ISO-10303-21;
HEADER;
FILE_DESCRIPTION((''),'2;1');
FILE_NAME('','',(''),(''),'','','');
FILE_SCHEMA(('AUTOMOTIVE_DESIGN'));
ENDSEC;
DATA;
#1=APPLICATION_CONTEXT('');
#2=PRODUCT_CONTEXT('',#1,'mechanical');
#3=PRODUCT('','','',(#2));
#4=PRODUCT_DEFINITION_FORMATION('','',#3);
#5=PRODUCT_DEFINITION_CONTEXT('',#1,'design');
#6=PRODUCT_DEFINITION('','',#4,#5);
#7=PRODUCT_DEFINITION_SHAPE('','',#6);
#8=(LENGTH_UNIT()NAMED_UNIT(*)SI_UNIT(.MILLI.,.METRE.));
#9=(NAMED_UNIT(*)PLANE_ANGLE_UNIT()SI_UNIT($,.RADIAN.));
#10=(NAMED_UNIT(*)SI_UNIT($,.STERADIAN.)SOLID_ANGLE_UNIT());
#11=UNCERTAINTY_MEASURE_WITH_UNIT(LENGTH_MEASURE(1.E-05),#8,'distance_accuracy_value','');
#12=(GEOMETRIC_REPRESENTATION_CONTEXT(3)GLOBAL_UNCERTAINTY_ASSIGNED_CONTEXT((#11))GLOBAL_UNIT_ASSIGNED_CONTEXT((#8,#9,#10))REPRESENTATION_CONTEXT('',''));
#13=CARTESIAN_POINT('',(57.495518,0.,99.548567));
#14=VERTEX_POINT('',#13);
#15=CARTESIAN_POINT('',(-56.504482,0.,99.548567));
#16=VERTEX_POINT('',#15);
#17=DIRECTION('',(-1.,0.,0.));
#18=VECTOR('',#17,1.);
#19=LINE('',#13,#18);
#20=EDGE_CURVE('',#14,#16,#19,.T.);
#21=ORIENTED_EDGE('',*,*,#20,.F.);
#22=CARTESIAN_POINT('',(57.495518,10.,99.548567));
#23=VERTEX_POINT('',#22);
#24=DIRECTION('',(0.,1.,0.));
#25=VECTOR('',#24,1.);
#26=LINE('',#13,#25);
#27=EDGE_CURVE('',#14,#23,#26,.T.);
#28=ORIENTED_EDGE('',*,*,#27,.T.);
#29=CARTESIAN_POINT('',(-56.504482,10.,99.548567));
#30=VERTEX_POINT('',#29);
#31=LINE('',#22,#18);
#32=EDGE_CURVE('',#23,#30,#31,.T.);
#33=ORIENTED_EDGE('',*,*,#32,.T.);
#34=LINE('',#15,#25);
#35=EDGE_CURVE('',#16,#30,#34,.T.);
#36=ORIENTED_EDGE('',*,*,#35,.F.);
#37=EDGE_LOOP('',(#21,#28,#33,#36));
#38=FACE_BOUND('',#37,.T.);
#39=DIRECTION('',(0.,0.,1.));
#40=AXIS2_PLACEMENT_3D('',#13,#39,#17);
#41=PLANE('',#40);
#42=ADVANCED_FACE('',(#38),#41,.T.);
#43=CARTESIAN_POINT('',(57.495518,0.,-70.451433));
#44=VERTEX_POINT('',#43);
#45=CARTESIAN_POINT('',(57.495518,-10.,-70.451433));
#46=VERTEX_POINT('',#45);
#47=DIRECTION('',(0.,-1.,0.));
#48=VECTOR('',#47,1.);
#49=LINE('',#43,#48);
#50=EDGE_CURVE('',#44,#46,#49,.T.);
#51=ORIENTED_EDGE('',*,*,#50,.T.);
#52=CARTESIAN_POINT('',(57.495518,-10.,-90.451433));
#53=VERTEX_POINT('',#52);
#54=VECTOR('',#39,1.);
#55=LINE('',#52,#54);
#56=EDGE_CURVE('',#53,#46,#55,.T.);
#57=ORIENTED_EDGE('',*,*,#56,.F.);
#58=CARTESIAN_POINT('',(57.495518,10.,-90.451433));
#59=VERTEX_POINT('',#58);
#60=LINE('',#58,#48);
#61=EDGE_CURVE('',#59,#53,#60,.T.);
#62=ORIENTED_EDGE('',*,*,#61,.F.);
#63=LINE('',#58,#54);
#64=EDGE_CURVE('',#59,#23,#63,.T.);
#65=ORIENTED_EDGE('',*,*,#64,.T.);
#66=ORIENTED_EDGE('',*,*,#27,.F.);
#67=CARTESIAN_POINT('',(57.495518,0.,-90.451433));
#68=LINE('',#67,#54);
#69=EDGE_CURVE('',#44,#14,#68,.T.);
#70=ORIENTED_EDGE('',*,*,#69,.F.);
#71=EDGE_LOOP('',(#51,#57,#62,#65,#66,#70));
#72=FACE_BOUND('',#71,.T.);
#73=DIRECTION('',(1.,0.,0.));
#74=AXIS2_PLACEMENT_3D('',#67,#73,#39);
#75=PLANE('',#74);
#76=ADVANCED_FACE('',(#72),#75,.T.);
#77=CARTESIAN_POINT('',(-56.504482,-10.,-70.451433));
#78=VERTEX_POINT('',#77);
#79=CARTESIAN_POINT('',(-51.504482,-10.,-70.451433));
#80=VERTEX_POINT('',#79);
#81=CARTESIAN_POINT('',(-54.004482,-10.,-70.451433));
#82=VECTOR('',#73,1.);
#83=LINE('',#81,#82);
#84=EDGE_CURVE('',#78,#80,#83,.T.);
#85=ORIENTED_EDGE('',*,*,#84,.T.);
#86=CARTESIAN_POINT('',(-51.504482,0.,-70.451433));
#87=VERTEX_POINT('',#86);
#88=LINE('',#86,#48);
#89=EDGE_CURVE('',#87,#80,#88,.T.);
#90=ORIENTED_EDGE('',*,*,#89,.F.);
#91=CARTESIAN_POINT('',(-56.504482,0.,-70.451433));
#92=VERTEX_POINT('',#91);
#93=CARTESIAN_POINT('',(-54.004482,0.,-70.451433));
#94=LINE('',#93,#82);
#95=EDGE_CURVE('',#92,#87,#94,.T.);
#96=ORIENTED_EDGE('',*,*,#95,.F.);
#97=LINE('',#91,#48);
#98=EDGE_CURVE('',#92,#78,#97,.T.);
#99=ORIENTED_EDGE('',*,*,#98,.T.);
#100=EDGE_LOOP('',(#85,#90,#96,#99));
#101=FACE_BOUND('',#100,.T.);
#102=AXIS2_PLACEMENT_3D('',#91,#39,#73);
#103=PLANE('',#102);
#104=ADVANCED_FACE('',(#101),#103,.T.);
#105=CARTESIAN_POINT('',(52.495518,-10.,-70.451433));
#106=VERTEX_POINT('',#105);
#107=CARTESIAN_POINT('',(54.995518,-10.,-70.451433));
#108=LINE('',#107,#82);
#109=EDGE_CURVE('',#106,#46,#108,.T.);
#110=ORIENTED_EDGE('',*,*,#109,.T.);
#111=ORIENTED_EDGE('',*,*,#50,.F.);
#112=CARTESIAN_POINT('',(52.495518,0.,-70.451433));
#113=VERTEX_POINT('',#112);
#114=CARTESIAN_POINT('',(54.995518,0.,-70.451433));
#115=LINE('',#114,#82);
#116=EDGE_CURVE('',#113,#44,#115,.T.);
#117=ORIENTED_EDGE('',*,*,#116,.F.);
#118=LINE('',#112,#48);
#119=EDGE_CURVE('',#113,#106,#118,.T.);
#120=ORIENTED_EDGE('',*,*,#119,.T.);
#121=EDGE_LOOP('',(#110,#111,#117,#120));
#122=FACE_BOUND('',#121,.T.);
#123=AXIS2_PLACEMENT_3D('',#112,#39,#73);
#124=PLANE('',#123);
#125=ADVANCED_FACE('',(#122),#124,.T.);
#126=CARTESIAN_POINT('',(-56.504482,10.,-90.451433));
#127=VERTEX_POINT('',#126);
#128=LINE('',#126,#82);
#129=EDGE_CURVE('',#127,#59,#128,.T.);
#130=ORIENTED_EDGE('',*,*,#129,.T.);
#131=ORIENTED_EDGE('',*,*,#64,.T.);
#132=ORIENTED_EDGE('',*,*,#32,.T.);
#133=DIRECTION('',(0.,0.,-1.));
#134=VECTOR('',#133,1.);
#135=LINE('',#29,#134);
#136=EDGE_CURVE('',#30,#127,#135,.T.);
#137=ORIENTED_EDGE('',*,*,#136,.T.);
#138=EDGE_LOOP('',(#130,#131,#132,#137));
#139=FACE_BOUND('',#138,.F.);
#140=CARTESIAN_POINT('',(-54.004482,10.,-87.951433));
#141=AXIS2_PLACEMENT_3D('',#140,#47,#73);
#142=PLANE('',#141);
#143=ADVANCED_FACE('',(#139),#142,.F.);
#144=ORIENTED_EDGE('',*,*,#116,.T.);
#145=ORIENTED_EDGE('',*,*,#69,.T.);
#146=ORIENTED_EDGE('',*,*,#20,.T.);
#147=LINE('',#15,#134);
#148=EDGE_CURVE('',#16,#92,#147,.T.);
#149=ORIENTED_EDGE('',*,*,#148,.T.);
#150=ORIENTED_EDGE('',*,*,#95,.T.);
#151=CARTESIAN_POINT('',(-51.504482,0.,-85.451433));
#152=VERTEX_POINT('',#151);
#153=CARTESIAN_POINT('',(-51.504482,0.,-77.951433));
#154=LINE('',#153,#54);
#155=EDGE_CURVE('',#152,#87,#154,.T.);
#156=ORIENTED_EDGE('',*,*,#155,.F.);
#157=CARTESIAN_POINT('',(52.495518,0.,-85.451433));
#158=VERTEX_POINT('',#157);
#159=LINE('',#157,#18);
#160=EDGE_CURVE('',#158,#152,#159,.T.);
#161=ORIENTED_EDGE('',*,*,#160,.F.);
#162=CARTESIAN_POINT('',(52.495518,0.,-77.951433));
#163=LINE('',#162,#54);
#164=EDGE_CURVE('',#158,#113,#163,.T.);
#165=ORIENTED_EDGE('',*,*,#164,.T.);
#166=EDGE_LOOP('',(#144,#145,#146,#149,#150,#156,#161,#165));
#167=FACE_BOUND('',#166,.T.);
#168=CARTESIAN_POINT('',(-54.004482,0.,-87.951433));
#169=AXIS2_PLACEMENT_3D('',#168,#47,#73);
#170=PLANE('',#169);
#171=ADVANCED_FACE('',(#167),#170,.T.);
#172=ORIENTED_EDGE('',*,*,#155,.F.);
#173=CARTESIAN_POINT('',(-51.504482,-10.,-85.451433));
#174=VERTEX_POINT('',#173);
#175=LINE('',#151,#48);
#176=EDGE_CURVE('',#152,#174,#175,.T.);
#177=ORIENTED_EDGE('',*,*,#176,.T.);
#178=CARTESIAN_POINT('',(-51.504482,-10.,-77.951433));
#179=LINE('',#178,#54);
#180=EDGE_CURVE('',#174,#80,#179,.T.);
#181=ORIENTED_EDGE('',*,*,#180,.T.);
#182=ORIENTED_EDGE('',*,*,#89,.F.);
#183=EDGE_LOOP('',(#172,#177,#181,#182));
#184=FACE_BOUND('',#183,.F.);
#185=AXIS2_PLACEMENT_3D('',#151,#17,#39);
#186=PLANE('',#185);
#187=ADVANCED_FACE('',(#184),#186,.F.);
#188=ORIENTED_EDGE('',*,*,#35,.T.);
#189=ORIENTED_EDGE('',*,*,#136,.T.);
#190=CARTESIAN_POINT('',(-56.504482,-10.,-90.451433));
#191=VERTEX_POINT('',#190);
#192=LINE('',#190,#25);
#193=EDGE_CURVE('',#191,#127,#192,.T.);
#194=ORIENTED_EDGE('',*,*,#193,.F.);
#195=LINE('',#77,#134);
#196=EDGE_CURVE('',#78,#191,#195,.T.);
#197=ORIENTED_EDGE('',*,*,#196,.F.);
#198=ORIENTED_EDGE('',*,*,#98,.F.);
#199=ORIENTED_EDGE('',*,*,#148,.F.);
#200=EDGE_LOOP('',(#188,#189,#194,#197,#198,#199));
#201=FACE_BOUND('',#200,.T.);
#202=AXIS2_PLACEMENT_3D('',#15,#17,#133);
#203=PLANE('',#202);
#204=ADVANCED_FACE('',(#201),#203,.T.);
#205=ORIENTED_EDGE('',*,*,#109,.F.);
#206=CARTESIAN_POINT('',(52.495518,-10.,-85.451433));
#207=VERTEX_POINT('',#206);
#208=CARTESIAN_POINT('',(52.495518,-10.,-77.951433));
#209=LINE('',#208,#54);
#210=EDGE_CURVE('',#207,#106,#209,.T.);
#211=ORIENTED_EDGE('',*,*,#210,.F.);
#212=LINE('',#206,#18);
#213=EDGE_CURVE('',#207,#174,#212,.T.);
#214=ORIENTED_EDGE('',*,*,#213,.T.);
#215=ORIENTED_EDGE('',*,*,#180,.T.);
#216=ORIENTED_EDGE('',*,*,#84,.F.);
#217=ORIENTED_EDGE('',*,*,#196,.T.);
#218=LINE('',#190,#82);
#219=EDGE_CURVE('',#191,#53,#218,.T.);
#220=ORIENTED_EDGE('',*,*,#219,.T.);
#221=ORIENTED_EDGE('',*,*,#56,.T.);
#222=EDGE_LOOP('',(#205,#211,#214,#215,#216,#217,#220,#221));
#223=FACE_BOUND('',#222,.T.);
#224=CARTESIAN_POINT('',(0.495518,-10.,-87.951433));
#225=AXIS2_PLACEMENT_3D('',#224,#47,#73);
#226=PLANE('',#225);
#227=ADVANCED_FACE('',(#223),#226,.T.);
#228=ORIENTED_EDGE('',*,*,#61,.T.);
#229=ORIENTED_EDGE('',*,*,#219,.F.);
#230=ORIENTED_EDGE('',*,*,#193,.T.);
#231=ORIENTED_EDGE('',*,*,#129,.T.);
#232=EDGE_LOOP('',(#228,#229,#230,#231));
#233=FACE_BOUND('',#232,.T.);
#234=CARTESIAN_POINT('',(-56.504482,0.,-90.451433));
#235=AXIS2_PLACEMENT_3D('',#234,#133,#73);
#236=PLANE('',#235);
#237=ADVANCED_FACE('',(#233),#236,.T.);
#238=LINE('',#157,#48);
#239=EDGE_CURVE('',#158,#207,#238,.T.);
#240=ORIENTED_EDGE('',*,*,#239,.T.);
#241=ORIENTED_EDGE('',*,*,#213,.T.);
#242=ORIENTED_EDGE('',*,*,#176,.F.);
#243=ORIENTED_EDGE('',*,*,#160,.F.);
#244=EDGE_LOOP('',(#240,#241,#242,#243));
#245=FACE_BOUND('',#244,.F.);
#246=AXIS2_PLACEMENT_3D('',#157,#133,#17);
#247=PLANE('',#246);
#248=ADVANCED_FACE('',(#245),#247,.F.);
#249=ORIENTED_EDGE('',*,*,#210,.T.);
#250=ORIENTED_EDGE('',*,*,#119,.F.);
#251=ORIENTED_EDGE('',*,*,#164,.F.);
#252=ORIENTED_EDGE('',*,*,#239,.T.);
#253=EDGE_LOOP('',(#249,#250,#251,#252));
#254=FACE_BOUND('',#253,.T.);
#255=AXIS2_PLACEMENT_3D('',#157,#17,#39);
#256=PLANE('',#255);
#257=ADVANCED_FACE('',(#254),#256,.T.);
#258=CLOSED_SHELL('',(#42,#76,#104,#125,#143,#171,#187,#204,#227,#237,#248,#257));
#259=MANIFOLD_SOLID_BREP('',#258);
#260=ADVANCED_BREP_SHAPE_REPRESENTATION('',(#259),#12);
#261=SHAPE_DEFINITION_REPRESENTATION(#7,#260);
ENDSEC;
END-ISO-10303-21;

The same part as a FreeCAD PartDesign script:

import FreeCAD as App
import Part
import Sketcher
from FreeCAD import Vector

doc = App.newDocument("Part")
body = doc.addObject("PartDesign::Body", "Body")

sketch1 = doc.addObject("Sketcher::SketchObject", "Sketch")
body.addObject(sketch1)
sketch1.AttachmentSupport = (doc.XZ_Plane, [""])
sketch1.MapMode = "FlatFace"
sketch1.addGeometry(Part.LineSegment(Vector(52, -85, 0), Vector(-52, -85, 0)), False)
sketch1.addGeometry(Part.LineSegment(Vector(-52, -85, 0), Vector(-52, -70, 0)), False)
sketch1.addGeometry(Part.LineSegment(Vector(-52, -70, 0), Vector(-57, -70, 0)), False)
sketch1.addGeometry(Part.LineSegment(Vector(-57, -70, 0), Vector(-57, -90, 0)), False)
sketch1.addGeometry(Part.LineSegment(Vector(-57, -90, 0), Vector(57, -90, 0)), False)
sketch1.addGeometry(Part.LineSegment(Vector(57, -90, 0), Vector(57, -70, 0)), False)
sketch1.addGeometry(Part.LineSegment(Vector(57, -70, 0), Vector(52, -70, 0)), False)
sketch1.addGeometry(Part.LineSegment(Vector(52, -70, 0), Vector(52, -85, 0)), False)
sketch1.addConstraint(Sketcher.Constraint("Coincident", 0, 2, 1, 1))
sketch1.addConstraint(Sketcher.Constraint("Coincident", 1, 2, 2, 1))
sketch1.addConstraint(Sketcher.Constraint("Coincident", 2, 2, 3, 1))
sketch1.addConstraint(Sketcher.Constraint("Coincident", 3, 2, 4, 1))
sketch1.addConstraint(Sketcher.Constraint("Coincident", 4, 2, 5, 1))
sketch1.addConstraint(Sketcher.Constraint("Coincident", 5, 2, 6, 1))
sketch1.addConstraint(Sketcher.Constraint("Coincident", 6, 2, 7, 1))
sketch1.addConstraint(Sketcher.Constraint("Coincident", 7, 2, 0, 1))
sketch1.addConstraint(Sketcher.Constraint("Horizontal", 0))
sketch1.addConstraint(Sketcher.Constraint("Vertical", 1))
sketch1.addConstraint(Sketcher.Constraint("Horizontal", 2))
sketch1.addConstraint(Sketcher.Constraint("Vertical", 3))
sketch1.addConstraint(Sketcher.Constraint("Horizontal", 4))
sketch1.addConstraint(Sketcher.Constraint("Vertical", 5))
sketch1.addConstraint(Sketcher.Constraint("Horizontal", 6))
sketch1.addConstraint(Sketcher.Constraint("Vertical", 7))
sketch1.addConstraint(Sketcher.Constraint("Horizontal", 2, 2, 5, 2))
sketch1.addConstraint(Sketcher.Constraint("Equal", 2, 6))
sketch1.addConstraint(Sketcher.Constraint("DistanceX", 0, 2, 0, 1, 104.0))
sketch1.addConstraint(Sketcher.Constraint("DistanceX", 2, 2, 2, 1, 5.0))
sketch1.addConstraint(Sketcher.Constraint("DistanceY", 1, 1, 1, 2, 15.0))
sketch1.addConstraint(Sketcher.Constraint("DistanceY", 3, 2, 3, 1, 20.0))
sketch1.addConstraint(Sketcher.Constraint("DistanceX", 0, 2, -1, 1, 51.504482))
sketch1.addConstraint(Sketcher.Constraint("DistanceY", 0, 2, -1, 1, 85.451433))
pad1 = doc.addObject("PartDesign::Pad", "Pad")
body.addObject(pad1)
pad1.Profile = sketch1
pad1.Length = 10

sketch2 = doc.addObject("Sketcher::SketchObject", "Sketch001")
body.addObject(sketch2)
sketch2.AttachmentSupport = (doc.XZ_Plane, [""])
sketch2.MapMode = "FlatFace"
sketch2.addGeometry(Part.LineSegment(Vector(-57, -90, 0), Vector(57, -90, 0)), False)
sketch2.addGeometry(Part.LineSegment(Vector(57, -90, 0), Vector(57, 100, 0)), False)
sketch2.addGeometry(Part.LineSegment(Vector(57, 100, 0), Vector(-57, 100, 0)), False)
sketch2.addGeometry(Part.LineSegment(Vector(-57, 100, 0), Vector(-57, -90, 0)), False)
sketch2.addConstraint(Sketcher.Constraint("Coincident", 0, 2, 1, 1))
sketch2.addConstraint(Sketcher.Constraint("Coincident", 1, 2, 2, 1))
sketch2.addConstraint(Sketcher.Constraint("Coincident", 2, 2, 3, 1))
sketch2.addConstraint(Sketcher.Constraint("Coincident", 3, 2, 0, 1))
sketch2.addConstraint(Sketcher.Constraint("Horizontal", 0))
sketch2.addConstraint(Sketcher.Constraint("Vertical", 1))
sketch2.addConstraint(Sketcher.Constraint("Horizontal", 2))
sketch2.addConstraint(Sketcher.Constraint("Vertical", 3))
sketch2.addConstraint(Sketcher.Constraint("DistanceX", 0, 1, 0, 2, 114.0))
sketch2.addConstraint(Sketcher.Constraint("DistanceY", 1, 1, 1, 2, 190.0))
sketch2.addConstraint(Sketcher.Constraint("DistanceX", -1, 1, 0, 2, 57.495518))
sketch2.addConstraint(Sketcher.Constraint("DistanceY", 0, 2, -1, 1, 90.451433))
pad2 = doc.addObject("PartDesign::Pad", "Pad001")
body.addObject(pad2)
pad2.Profile = sketch2
pad2.Length = 10
pad2.Reversed = True

doc.recompute()
